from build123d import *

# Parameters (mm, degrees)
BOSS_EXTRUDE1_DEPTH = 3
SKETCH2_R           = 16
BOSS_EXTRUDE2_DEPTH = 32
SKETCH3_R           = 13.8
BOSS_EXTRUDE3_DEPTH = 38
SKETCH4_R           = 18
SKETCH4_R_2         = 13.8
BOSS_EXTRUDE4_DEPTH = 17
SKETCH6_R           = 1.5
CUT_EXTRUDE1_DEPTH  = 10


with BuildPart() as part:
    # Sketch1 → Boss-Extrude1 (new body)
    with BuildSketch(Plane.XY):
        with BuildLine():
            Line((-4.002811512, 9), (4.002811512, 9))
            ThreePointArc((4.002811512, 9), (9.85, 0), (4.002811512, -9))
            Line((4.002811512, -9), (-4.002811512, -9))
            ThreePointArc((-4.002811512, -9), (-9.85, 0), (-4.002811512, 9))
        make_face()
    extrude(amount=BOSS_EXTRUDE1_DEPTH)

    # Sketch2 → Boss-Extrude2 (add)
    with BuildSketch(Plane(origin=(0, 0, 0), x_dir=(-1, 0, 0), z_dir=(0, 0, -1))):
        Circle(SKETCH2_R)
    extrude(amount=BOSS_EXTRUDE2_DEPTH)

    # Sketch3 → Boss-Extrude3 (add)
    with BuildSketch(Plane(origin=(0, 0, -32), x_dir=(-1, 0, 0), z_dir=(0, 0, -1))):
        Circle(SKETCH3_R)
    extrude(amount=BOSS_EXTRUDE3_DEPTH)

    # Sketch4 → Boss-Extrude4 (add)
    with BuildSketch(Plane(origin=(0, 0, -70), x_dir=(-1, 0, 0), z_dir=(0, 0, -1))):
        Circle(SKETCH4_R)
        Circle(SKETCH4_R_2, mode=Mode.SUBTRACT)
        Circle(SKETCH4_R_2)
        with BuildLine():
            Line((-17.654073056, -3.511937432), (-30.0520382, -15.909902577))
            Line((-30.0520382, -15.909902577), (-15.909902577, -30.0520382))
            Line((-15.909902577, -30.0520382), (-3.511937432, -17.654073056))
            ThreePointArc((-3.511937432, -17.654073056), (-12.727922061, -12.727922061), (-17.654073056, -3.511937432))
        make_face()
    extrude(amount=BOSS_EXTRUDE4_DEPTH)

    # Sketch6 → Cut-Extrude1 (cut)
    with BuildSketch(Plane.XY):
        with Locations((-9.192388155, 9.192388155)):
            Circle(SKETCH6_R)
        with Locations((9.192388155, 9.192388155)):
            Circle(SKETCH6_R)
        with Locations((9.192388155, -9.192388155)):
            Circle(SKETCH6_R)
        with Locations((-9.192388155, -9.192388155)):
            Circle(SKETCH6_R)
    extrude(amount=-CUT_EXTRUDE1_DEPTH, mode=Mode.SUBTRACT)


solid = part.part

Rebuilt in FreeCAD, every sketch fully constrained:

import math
import FreeCAD as App
import Part
import Sketcher
from FreeCAD import Vector
Q = App.Units.Quantity

doc = App.newDocument("Part")
body = doc.addObject("PartDesign::Body", "Body")

# Sketch on XY plane
sketch1 = doc.addObject("Sketcher::SketchObject", "Sketch")
body.addObject(sketch1)
sketch1.AttachmentSupport = (doc.XY_Plane, [""])
sketch1.MapMode = "FlatFace"
sketch1.addGeometry([
    Part.LineSegment(Vector(4.002812, 9, 0), Vector(-4.002812, 9, 0)),
    Part.ArcOfCircle(Part.Circle(Vector(0, 0, 0), Vector(0, 0, 1), 9.85), math.radians(113.977434), math.radians(246.022566)),
    Part.LineSegment(Vector(-4.002812, -9, 0), Vector(4.002812, -9, 0)),
    Part.ArcOfCircle(Part.Circle(Vector(0, 0, 0), Vector(0, 0, 1), 9.85), math.radians(-66.022566), math.radians(66.022566)),
], False)
sketch1.addConstraint([
    Sketcher.Constraint("Coincident", 0, 2, 1, 1),
    Sketcher.Constraint("Coincident", 1, 2, 2, 1),
    Sketcher.Constraint("Coincident", 2, 2, 3, 1),
    Sketcher.Constraint("Coincident", 3, 2, 0, 1),
    Sketcher.Constraint("Horizontal", 0),
    Sketcher.Constraint("Horizontal", 2),
    Sketcher.Constraint("Coincident", 1, 3, -1, 1),
    Sketcher.Constraint("Coincident", 3, 3, -1, 1),
    Sketcher.Constraint("Equal", 1, 3),
    Sketcher.Constraint("Vertical", 0, 2, 1, 2),
    Sketcher.Constraint("Radius", 1, 9.85),
    Sketcher.Constraint("DistanceY", -1, 1, 0, 2, 9.0),
])
pad1 = doc.addObject("PartDesign::Pad", "Pad")
body.addObject(pad1)
pad1.Profile = sketch1
pad1.Length = 3

# Sketch on XY plane
sketch2 = doc.addObject("Sketcher::SketchObject", "Sketch001")
body.addObject(sketch2)
sketch2.AttachmentSupport = (doc.XY_Plane, [""])
sketch2.MapMode = "FlatFace"
sketch2.addGeometry(Part.Circle(Vector(0, 0, 0), Vector(0, 0, 1), 16), False)
sketch2.addConstraint([
    Sketcher.Constraint("Coincident", 0, 3, -1, 1),
    Sketcher.Constraint("Diameter", 0, 32.0),
])
pad2 = doc.addObject("PartDesign::Pad", "Pad001")
body.addObject(pad2)
pad2.Profile = sketch2
pad2.Length = 32
pad2.Reversed = True

# Sketch on XY plane
sketch3 = doc.addObject("Sketcher::SketchObject", "Sketch002")
body.addObject(sketch3)
sketch3.AttachmentSupport = (doc.XY_Plane, [""])
sketch3.MapMode = "FlatFace"
sketch3.AttachmentOffset = App.Placement(Vector(0, 0, -32), App.Rotation())
sketch3.addGeometry(Part.Circle(Vector(0, 0, 0), Vector(0, 0, 1), 13.8), False)
sketch3.addConstraint([
    Sketcher.Constraint("Coincident", 0, 3, -1, 1),
    Sketcher.Constraint("Diameter", 0, 27.6),
])
pad3 = doc.addObject("PartDesign::Pad", "Pad002")
body.addObject(pad3)
pad3.Profile = sketch3
pad3.Length = 38
pad3.Reversed = True

# Sketch on XY plane
sketch4 = doc.addObject("Sketcher::SketchObject", "Sketch003")
body.addObject(sketch4)
sketch4.AttachmentSupport = (doc.XY_Plane, [""])
sketch4.MapMode = "FlatFace"
sketch4.AttachmentOffset = App.Placement(Vector(0, 0, -70), App.Rotation())
sketch4.addGeometry([
    Part.LineSegment(Vector(17.654073, -3.511937, 0), Vector(30.052038, -15.909903, 0)),
    Part.LineSegment(Vector(30.052038, -15.909903, 0), Vector(15.909903, -30.052038, 0)),
    Part.LineSegment(Vector(15.909903, -30.052038, 0), Vector(3.511937, -17.654073, 0)),
    Part.ArcOfCircle(Part.Circle(Vector(0, 0, 0), Vector(0, 0, 1), 18), math.radians(-11.251011), math.radians(281.251011)),
], False)
sketch4.addConstraint([
    Sketcher.Constraint("Coincident", 0, 2, 1, 1),
    Sketcher.Constraint("Coincident", 1, 2, 2, 1),
    Sketcher.Constraint("Coincident", 2, 2, 3, 2),
    Sketcher.Constraint("Coincident", 3, 1, 0, 1),
    Sketcher.Constraint("Coincident", 3, 3, -1, 1),
    Sketcher.Constraint("Perpendicular", 0, 1),
    Sketcher.Constraint("Perpendicular", 1, 2),
    Sketcher.Constraint("Equal", 0, 2),
    Sketcher.Constraint("Radius", 3, 18.0),
    Sketcher.Constraint("Angle", 0, Q("-45 deg")),
    Sketcher.Constraint("Distance", 1, 20.0),
    Sketcher.Constraint("DistanceX", 2, 2, 0, 2, 26.540101),
])
pad4 = doc.addObject("PartDesign::Pad", "Pad003")
body.addObject(pad4)
pad4.Profile = sketch4
pad4.Length = 17
pad4.Reversed = True

# Sketch on XY plane
sketch5 = doc.addObject("Sketcher::SketchObject", "Sketch004")
body.addObject(sketch5)
sketch5.AttachmentSupport = (doc.XY_Plane, [""])
sketch5.MapMode = "FlatFace"
sketch5.addGeometry([
    Part.Circle(Vector(-9.192388, 9.192388, 0), Vector(0, 0, 1), 1.5),
    Part.Circle(Vector(9.192388, 9.192388, 0), Vector(0, 0, 1), 1.5),
    Part.Circle(Vector(9.192388, -9.192388, 0), Vector(0, 0, 1), 1.5),
    Part.Circle(Vector(-9.192388, -9.192388, 0), Vector(0, 0, 1), 1.5),
], False)
sketch5.addConstraint([
    Sketcher.Constraint("Equal", 0, 1),
    Sketcher.Constraint("Equal", 1, 2),
    Sketcher.Constraint("Equal", 2, 3),
    Sketcher.Constraint("Symmetric", 0, 3, 2, 3, -1, 1),
    Sketcher.Constraint("Symmetric", 1, 3, 3, 3, -1, 1),
    Sketcher.Constraint("Symmetric", 0, 3, 1, 3, -2),
    Sketcher.Constraint("Diameter", 0, 3.0),
    Sketcher.Constraint("DistanceX", 0, 3, -1, 1, 9.192388),
    Sketcher.Constraint("DistanceY", -1, 1, 0, 3, 9.192388),
])
pocket1 = doc.addObject("PartDesign::Pocket", "Pocket")
body.addObject(pocket1)
pocket1.Profile = sketch5
pocket1.Length = 10

doc.recompute()
